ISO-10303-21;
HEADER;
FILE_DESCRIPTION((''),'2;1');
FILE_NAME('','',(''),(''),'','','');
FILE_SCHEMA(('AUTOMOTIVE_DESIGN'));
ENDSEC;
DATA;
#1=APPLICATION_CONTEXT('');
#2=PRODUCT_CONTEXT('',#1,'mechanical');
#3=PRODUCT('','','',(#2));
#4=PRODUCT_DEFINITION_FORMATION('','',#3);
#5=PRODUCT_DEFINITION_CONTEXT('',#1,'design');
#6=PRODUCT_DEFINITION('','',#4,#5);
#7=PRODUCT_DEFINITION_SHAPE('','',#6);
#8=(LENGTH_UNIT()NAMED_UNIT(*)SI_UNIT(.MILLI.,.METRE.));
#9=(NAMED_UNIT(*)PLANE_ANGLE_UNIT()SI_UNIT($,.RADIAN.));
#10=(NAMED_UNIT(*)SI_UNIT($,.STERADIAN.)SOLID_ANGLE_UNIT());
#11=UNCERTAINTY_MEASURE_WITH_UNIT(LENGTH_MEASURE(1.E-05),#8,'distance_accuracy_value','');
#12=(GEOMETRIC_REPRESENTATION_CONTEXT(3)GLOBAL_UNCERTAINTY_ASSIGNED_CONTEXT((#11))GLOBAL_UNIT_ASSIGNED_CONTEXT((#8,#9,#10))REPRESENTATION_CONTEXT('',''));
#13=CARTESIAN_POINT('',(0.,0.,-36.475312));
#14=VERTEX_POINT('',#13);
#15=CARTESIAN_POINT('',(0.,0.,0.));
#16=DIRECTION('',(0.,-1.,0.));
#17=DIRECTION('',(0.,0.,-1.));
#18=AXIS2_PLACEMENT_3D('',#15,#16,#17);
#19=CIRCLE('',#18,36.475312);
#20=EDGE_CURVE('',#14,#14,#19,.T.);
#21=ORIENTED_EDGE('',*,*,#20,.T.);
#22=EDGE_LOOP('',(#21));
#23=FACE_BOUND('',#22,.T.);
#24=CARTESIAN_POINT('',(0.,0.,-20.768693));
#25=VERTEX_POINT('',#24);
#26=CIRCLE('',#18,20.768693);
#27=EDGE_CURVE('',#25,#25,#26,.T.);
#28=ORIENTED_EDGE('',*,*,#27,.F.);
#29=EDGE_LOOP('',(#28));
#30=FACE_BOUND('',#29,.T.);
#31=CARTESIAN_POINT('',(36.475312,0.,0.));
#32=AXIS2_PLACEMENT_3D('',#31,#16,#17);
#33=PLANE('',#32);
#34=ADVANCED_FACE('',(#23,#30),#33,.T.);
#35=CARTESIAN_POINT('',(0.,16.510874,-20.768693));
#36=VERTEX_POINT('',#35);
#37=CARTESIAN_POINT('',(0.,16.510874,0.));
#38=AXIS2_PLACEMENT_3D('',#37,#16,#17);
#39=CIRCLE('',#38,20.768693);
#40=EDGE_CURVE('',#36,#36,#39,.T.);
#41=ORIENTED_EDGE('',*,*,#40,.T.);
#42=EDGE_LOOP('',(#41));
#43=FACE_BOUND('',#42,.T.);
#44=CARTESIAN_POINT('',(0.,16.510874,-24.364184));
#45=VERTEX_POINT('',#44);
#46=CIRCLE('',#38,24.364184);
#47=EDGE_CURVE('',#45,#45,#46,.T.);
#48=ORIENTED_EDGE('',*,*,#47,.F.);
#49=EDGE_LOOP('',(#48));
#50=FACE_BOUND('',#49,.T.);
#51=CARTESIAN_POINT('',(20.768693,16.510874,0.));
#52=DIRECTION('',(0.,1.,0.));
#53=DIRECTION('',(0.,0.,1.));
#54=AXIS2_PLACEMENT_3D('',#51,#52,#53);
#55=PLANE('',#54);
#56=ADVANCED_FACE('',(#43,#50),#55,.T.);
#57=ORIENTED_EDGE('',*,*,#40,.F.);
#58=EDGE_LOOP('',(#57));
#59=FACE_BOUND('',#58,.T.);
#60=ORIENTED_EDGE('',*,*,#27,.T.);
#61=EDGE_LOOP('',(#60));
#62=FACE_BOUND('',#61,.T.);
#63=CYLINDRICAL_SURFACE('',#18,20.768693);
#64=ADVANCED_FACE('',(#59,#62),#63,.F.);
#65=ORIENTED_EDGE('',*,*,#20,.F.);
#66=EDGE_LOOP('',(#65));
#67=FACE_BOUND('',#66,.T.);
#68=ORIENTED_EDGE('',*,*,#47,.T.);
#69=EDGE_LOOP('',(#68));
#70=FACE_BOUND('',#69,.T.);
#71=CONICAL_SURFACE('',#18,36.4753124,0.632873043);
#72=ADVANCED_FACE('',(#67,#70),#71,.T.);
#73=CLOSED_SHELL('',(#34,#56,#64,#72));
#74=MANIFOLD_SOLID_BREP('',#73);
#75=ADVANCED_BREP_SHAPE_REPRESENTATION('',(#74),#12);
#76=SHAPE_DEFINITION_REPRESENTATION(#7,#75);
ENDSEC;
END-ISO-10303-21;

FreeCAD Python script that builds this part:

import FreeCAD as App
import Part
import Sketcher

V = App.Vector

doc = App.newDocument("Part")
params = doc.addObject("Spreadsheet::Sheet", "Params")
for row, (alias, value) in enumerate([
    ("revolution_angle", "360 deg"),
], start=1):
    params.set(f"A{row}", alias)
    params.set(f"B{row}", "=" + value)
    params.setAlias(f"B{row}", alias)

body = doc.addObject("PartDesign::Body", "Body")

# Sketch on XY plane
sketch1 = doc.addObject("Sketcher::SketchObject", "Sketch")
body.addObject(sketch1)
sketch1.AttachmentSupport = (doc.XY_Plane, [""])
sketch1.MapMode = "FlatFace"
sketch1.addGeometry(Part.LineSegment(V(20.8, 16.5, 0), V(20.8, 0, 0)), False)
sketch1.addGeometry(Part.LineSegment(V(20.8, 0, 0), V(36.5, 0, 0)), False)
sketch1.addGeometry(Part.LineSegment(V(36.5, 0, 0), V(24.4, 16.5, 0)), False)
sketch1.addGeometry(Part.LineSegment(V(24.4, 16.5, 0), V(20.8, 16.5, 0)), False)
sketch1.addConstraint(Sketcher.Constraint("Coincident", 0, 2, 1, 1))
sketch1.addConstraint(Sketcher.Constraint("Coincident", 1, 2, 2, 1))
sketch1.addConstraint(Sketcher.Constraint("Coincident", 2, 2, 3, 1))
sketch1.addConstraint(Sketcher.Constraint("Coincident", 3, 2, 0, 1))
sketch1.addConstraint(Sketcher.Constraint("Vertical", 0))
sketch1.addConstraint(Sketcher.Constraint("Horizontal", 1))
sketch1.addConstraint(Sketcher.Constraint("Horizontal", 3))
sketch1.addConstraint(Sketcher.Constraint("PointOnObject", 0, 2, -1))
sketch1.addConstraint(Sketcher.Constraint("DistanceX", 1, 1, 1, 2, 15.70662))
sketch1.addConstraint(Sketcher.Constraint("DistanceX", 3, 2, 3, 1, 3.595491))
sketch1.addConstraint(Sketcher.Constraint("DistanceY", 0, 2, 0, 1, 16.510874))
sketch1.addConstraint(Sketcher.Constraint("DistanceX", -1, 1, 0, 2, 20.768693))
revolution = doc.addObject("PartDesign::Revolution", "Revolution")
body.addObject(revolution)
revolution.Profile = sketch1
revolution.ReferenceAxis = (sketch1, ["V_Axis"])
revolution.setExpression("Angle", "Params.revolution_angle")

doc.recompute()
